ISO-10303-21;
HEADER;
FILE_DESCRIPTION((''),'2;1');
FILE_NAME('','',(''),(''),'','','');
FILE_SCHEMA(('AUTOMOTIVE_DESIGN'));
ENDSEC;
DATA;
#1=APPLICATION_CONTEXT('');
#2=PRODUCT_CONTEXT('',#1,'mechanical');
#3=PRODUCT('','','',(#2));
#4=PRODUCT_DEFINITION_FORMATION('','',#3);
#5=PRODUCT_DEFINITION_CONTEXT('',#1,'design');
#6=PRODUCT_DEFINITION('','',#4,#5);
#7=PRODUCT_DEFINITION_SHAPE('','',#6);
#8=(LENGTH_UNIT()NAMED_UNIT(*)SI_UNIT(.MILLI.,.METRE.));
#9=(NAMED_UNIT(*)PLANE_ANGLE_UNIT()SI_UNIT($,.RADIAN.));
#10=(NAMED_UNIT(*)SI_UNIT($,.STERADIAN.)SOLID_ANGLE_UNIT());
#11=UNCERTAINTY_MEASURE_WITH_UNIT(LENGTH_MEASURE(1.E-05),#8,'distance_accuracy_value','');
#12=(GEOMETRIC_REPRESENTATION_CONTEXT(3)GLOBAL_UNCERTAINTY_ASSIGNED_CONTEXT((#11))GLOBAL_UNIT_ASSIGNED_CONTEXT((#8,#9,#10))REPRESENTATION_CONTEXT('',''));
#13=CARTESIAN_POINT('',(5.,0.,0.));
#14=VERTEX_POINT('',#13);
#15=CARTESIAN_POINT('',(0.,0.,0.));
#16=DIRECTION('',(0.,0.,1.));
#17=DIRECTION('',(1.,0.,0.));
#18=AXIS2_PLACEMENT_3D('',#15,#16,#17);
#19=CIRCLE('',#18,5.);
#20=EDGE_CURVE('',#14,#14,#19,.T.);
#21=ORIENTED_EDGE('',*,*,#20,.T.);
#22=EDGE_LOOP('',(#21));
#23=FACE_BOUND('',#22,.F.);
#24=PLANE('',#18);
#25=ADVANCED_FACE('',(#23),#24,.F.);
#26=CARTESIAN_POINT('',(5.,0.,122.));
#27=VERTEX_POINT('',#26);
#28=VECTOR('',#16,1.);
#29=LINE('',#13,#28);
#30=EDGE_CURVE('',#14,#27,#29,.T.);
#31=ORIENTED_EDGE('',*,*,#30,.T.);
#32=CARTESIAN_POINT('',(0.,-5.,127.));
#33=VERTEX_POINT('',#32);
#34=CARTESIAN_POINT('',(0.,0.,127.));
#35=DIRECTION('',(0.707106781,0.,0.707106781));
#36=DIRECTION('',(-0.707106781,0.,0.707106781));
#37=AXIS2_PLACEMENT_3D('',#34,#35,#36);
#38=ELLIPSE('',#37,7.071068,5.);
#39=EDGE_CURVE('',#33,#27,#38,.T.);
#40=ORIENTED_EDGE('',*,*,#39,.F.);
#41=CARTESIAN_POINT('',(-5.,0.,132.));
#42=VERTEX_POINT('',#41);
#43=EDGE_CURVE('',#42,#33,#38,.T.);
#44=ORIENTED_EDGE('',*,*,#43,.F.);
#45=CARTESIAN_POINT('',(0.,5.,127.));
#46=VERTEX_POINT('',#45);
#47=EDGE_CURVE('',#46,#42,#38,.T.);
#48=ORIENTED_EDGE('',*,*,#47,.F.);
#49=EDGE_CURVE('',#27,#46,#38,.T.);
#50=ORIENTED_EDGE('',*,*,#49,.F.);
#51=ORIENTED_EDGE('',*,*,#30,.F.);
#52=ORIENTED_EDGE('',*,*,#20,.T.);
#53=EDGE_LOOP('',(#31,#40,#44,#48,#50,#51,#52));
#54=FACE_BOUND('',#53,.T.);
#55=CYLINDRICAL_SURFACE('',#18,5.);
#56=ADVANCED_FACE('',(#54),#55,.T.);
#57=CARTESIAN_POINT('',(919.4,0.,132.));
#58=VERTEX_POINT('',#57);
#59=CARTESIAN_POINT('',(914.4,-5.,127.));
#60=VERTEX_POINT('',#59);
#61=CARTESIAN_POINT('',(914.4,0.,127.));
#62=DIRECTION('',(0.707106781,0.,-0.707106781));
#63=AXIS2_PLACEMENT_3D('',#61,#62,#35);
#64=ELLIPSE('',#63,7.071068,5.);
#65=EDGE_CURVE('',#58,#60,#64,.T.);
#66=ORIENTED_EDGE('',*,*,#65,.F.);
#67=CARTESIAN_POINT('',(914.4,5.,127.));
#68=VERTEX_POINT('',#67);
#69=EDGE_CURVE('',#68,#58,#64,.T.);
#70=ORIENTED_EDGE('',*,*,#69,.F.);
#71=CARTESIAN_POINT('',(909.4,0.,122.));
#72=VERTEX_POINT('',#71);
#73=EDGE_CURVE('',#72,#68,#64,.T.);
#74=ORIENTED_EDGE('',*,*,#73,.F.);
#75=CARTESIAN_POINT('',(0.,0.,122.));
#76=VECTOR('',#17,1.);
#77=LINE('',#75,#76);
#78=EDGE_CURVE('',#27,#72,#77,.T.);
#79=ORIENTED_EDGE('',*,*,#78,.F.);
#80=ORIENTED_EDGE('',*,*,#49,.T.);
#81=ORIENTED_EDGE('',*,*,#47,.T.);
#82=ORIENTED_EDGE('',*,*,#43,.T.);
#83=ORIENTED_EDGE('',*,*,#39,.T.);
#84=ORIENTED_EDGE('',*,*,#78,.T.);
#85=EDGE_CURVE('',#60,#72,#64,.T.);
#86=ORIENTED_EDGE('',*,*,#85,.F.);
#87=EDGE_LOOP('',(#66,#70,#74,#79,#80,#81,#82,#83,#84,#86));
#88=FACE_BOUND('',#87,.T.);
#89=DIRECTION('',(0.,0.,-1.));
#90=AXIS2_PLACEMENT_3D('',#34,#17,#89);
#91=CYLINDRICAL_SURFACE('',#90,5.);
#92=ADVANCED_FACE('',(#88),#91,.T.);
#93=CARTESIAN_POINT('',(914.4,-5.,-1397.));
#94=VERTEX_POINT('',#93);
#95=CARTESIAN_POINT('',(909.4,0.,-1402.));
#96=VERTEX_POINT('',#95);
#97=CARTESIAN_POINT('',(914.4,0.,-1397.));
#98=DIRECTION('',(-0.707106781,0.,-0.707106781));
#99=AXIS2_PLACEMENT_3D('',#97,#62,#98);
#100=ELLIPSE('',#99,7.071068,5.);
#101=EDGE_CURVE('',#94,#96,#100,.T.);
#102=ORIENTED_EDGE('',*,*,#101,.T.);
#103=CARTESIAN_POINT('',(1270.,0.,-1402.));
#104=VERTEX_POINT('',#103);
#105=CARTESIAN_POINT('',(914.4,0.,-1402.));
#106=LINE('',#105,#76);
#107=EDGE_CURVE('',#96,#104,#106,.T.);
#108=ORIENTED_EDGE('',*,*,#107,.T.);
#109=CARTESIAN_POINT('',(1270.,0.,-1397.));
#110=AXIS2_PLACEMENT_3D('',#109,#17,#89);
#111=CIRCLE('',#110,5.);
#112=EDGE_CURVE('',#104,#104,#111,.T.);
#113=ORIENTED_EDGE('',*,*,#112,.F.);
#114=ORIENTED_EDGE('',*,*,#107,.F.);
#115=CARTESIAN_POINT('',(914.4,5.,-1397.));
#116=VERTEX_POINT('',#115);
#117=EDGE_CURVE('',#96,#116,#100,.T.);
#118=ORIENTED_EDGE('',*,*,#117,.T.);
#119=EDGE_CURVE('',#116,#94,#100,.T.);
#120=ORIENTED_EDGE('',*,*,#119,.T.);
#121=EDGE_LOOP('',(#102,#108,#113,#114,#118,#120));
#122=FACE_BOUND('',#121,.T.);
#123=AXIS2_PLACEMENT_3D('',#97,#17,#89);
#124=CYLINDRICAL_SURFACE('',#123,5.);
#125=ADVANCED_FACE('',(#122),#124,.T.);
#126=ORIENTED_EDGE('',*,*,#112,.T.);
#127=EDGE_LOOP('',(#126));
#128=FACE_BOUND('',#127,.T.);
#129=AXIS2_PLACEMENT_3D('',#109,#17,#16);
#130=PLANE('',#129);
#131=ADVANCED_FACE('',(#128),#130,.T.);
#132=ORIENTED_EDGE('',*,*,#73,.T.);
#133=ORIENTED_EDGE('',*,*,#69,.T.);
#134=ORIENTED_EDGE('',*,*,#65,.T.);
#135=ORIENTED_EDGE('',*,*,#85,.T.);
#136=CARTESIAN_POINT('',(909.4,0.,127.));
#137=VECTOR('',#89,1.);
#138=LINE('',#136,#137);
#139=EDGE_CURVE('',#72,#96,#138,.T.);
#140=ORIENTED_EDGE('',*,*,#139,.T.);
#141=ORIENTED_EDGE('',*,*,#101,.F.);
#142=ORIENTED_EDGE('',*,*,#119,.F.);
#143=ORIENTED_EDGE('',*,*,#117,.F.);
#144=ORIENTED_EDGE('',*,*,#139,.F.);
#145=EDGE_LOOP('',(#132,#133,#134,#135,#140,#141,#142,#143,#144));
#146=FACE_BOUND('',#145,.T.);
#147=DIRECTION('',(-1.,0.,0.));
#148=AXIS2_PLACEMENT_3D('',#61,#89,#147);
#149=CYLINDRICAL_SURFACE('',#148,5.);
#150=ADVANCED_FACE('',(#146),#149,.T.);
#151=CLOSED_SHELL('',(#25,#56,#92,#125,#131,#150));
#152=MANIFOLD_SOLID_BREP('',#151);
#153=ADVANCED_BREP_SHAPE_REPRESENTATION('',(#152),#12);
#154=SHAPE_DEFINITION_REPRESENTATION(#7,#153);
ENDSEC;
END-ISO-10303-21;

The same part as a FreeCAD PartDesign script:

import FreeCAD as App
import Part
import Sketcher

V = App.Vector
Q = App.Units.Quantity

doc = App.newDocument("Part")
body = doc.addObject("PartDesign::Body", "Body")

# Sketch on XY plane
sketch1 = body.newObject("Sketcher::SketchObject", "Sketch")
sketch1.AttachmentSupport = (doc.getObject("XY_Plane"), [""])
sketch1.MapMode = "FlatFace"
sketch1.addGeometry(Part.Circle(V(0, 0, 0), V(0, 0, 1), 5), False)
sketch1.addConstraint([
    Sketcher.Constraint("Coincident", 0, 3, -1, 1),
    Sketcher.Constraint("Diameter", 0, 10.0),
])

# Sketch on XZ plane
sketch2 = body.newObject("Sketcher::SketchObject", "Sketch001")
sketch2.AttachmentSupport = (doc.getObject("XZ_Plane"), [""])
sketch2.MapMode = "FlatFace"
sketch2.addGeometry([
    Part.LineSegment(V(0, 0, 0), V(0, 127, 0)),
    Part.LineSegment(V(0, 127, 0), V(914, 127, 0)),
    Part.LineSegment(V(914, 127, 0), V(914, -1397, 0)),
    Part.LineSegment(V(914, -1397, 0), V(1270, -1397, 0)),
], False)
sketch2.addConstraint([
    Sketcher.Constraint("Coincident", 0, 2, 1, 1),
    Sketcher.Constraint("Coincident", 1, 2, 2, 1),
    Sketcher.Constraint("Coincident", 2, 2, 3, 1),
    Sketcher.Constraint("Vertical", 0),
    Sketcher.Constraint("Horizontal", 1),
    Sketcher.Constraint("Vertical", 2),
    Sketcher.Constraint("Horizontal", 3),
    Sketcher.Constraint("Coincident", 0, 1, -1, 1),
    Sketcher.Constraint("DistanceX", 1, 1, 1, 2, Q("36 in")),
    Sketcher.Constraint("DistanceX", 3, 1, 3, 2, Q("14 in")),
    Sketcher.Constraint("DistanceY", 0, 1, 0, 2, Q("5 in")),
    Sketcher.Constraint("DistanceY", 2, 2, 2, 1, Q("60 in")),
])
doc.recompute()

additivepipe = body.newObject("PartDesign::AdditivePipe", "AdditivePipe")
additivepipe.Profile = sketch1
additivepipe.Spine = (sketch2, ["Edge1", "Edge2", "Edge3", "Edge4"])
additivepipe.Transition = "Right corner"

doc.recompute()
